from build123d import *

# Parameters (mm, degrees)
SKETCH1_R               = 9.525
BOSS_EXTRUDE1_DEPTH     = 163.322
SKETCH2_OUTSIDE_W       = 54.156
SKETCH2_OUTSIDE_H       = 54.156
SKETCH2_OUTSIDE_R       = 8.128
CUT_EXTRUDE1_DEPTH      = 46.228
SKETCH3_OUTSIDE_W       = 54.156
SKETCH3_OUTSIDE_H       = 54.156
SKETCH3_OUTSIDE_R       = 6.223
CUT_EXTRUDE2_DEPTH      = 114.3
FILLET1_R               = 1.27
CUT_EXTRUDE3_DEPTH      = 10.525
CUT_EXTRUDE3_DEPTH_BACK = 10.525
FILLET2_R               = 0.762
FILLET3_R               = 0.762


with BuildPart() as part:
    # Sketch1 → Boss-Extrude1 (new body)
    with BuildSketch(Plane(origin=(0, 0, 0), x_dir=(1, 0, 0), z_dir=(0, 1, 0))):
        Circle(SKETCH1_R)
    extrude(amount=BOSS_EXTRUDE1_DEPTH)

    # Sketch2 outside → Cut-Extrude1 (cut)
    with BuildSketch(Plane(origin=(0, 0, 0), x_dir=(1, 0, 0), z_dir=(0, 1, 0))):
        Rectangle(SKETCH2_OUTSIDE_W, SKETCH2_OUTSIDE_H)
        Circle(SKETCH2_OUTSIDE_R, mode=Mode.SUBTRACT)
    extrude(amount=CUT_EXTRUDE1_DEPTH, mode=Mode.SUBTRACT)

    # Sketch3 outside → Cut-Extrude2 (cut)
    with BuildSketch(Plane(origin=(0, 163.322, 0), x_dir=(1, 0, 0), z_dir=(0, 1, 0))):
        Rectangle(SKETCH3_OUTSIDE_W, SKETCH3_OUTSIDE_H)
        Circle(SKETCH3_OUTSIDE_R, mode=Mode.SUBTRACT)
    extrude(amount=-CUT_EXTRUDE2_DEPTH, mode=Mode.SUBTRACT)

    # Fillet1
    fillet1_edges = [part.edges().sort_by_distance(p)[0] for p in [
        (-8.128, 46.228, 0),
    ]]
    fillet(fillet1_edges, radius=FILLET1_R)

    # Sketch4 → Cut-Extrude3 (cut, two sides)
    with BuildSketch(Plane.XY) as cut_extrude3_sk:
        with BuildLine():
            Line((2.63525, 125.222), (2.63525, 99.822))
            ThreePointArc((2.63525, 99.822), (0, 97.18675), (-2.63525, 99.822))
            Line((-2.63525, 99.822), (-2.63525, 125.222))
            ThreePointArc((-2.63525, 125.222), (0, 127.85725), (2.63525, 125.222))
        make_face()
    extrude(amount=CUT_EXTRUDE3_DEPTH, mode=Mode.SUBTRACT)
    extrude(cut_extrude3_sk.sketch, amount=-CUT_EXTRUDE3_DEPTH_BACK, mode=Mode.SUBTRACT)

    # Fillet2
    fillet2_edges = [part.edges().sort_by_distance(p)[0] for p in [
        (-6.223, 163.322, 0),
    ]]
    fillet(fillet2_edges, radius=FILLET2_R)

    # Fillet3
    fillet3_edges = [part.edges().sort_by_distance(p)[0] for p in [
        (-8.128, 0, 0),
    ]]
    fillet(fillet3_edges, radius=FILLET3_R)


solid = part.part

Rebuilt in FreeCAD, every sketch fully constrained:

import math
import FreeCAD as App
import Part
import Sketcher
Q = App.Units.Quantity


def edges_at(feature, points):
    """Names of the edges that pass closest to the given points."""
    edges = feature.Shape.Edges
    near = lambda p: min(range(len(edges)), key=lambda i: edges[i].distToShape(Part.Vertex(*p))[0])
    return sorted({f"Edge{near(p) + 1}" for p in points})

doc = App.newDocument("Part")
params = doc.addObject("Spreadsheet::Sheet", "Params")
for row, (alias, value) in enumerate([
    ("sketch1_diameter", "0.75 in"),
    ("pad1_length", "6.43 in"),
    ("sketch2_diameter", "0.64 in"),
    ("pocket1_length", "1.82 in"),
    ("sketch3_diameter", "0.49 in"),
    ("pocket2_length", "4.5 in"),
    ("fillet_radius", "0.05 in"),
    ("sketch4_height", "1 in"),
    ("fillet2_radius", "0.03 in"),
    ("fillet3_radius", "0.03 in"),
], start=1):
    params.set(f"A{row}", alias)
    params.set(f"B{row}", "=" + value)
    params.setAlias(f"B{row}", alias)

body = doc.addObject("PartDesign::Body", "Body")

# Sketch on XZ plane
sketch1 = body.newObject("Sketcher::SketchObject", "Sketch")
sketch1.AttachmentSupport = (doc.getObject("XZ_Plane"), [""])
sketch1.MapMode = "FlatFace"
sketch1.addGeometry(Part.Circle(App.Vector(0, 0, 0), App.Vector(0, 0, 1), 10), False)
sketch1.addConstraint(Sketcher.Constraint("Coincident", 0, 3, -1, 1))
sketch1.addConstraint(Sketcher.Constraint("Diameter", 0, Q("0.75 in")))
sketch1.setExpression("Constraints[1]", "Params.sketch1_diameter")
pad1 = body.newObject("PartDesign::Pad", "Pad")
pad1.Profile = sketch1
pad1.setExpression("Length", "Params.pad1_length")
pad1.Reversed = True

# Sketch on XZ plane
sketch2 = body.newObject("Sketcher::SketchObject", "Sketch001")
sketch2.AttachmentSupport = (doc.getObject("XZ_Plane"), [""])
sketch2.MapMode = "FlatFace"
sketch2.addGeometry(Part.LineSegment(App.Vector(-27, -27, 0), App.Vector(-27, 27, 0)), False)
sketch2.addGeometry(Part.LineSegment(App.Vector(-27, 27, 0), App.Vector(27, 27, 0)), False)
sketch2.addGeometry(Part.LineSegment(App.Vector(27, 27, 0), App.Vector(27, -27, 0)), False)
sketch2.addGeometry(Part.LineSegment(App.Vector(27, -27, 0), App.Vector(-27, -27, 0)), False)
sketch2.addGeometry(Part.Circle(App.Vector(0, 0, 0), App.Vector(0, 0, 1), 8), False)
sketch2.addConstraint(Sketcher.Constraint("Coincident", 0, 2, 1, 1))
sketch2.addConstraint(Sketcher.Constraint("Coincident", 1, 2, 2, 1))
sketch2.addConstraint(Sketcher.Constraint("Coincident", 2, 2, 3, 1))
sketch2.addConstraint(Sketcher.Constraint("Coincident", 3, 2, 0, 1))
sketch2.addConstraint(Sketcher.Constraint("Vertical", 0))
sketch2.addConstraint(Sketcher.Constraint("Horizontal", 1))
sketch2.addConstraint(Sketcher.Constraint("Vertical", 2))
sketch2.addConstraint(Sketcher.Constraint("Horizontal", 3))
sketch2.addConstraint(Sketcher.Constraint("Coincident", 4, 3, -1, 1))
sketch2.addConstraint(Sketcher.Constraint("Symmetric", 0, 2, 2, 2, -1, 1))
sketch2.addConstraint(Sketcher.Constraint("Equal", 3, 0))
sketch2.addConstraint(Sketcher.Constraint("Diameter", 4, Q("0.64 in")))
sketch2.addConstraint(Sketcher.Constraint("DistanceX", 1, 1, 1, 2, Q("54.156 mm")))
sketch2.setExpression("Constraints[11]", "Params.sketch2_diameter")
pocket1 = body.newObject("PartDesign::Pocket", "Pocket")
pocket1.Profile = sketch2
pocket1.setExpression("Length", "Params.pocket1_length")

# Sketch on XZ plane
sketch3 = body.newObject("Sketcher::SketchObject", "Sketch002")
sketch3.AttachmentSupport = (doc.getObject("XZ_Plane"), [""])
sketch3.MapMode = "FlatFace"
sketch3.AttachmentOffset = App.Placement(App.Vector(0, 0, -6.43 * 25.4), App.Rotation())
sketch3.addGeometry(Part.LineSegment(App.Vector(-27, -27, 0), App.Vector(-27, 27, 0)), False)
sketch3.addGeometry(Part.LineSegment(App.Vector(-27, 27, 0), App.Vector(27, 27, 0)), False)
sketch3.addGeometry(Part.LineSegment(App.Vector(27, 27, 0), App.Vector(27, -27, 0)), False)
sketch3.addGeometry(Part.LineSegment(App.Vector(27, -27, 0), App.Vector(-27, -27, 0)), False)
sketch3.addGeometry(Part.Circle(App.Vector(0, 0, 0), App.Vector(0, 0, 1), 6), False)
sketch3.addConstraint(Sketcher.Constraint("Coincident", 0, 2, 1, 1))
sketch3.addConstraint(Sketcher.Constraint("Coincident", 1, 2, 2, 1))
sketch3.addConstraint(Sketcher.Constraint("Coincident", 2, 2, 3, 1))
sketch3.addConstraint(Sketcher.Constraint("Coincident", 3, 2, 0, 1))
sketch3.addConstraint(Sketcher.Constraint("Vertical", 0))
sketch3.addConstraint(Sketcher.Constraint("Horizontal", 1))
sketch3.addConstraint(Sketcher.Constraint("Vertical", 2))
sketch3.addConstraint(Sketcher.Constraint("Horizontal", 3))
sketch3.addConstraint(Sketcher.Constraint("Coincident", 4, 3, -1, 1))
sketch3.addConstraint(Sketcher.Constraint("Symmetric", 0, 2, 2, 2, -1, 1))
sketch3.addConstraint(Sketcher.Constraint("Equal", 3, 0))
sketch3.addConstraint(Sketcher.Constraint("Diameter", 4, Q("0.49 in")))
sketch3.addConstraint(Sketcher.Constraint("DistanceX", 1, 1, 1, 2, Q("54.156 mm")))
sketch3.setExpression("Constraints[11]", "Params.sketch3_diameter")
pocket2 = body.newObject("PartDesign::Pocket", "Pocket001")
pocket2.Profile = sketch3
pocket2.setExpression("Length", "Params.pocket2_length")
pocket2.Reversed = True
doc.recompute()

fillet = body.newObject("PartDesign::Fillet", "Fillet")
fillet.Base = (pocket2, edges_at(pocket2, [(-8.128, 46.228, 0)]))
fillet.setExpression("Radius", "Params.fillet_radius")

# Sketch on XY plane
sketch4 = body.newObject("Sketcher::SketchObject", "Sketch003")
sketch4.AttachmentSupport = (doc.getObject("XY_Plane"), [""])
sketch4.MapMode = "FlatFace"
sketch4.addGeometry(Part.LineSegment(App.Vector(2.6, 99.8, 0), App.Vector(2.6, 125.2, 0)), False)
sketch4.addGeometry(Part.ArcOfCircle(Part.Circle(App.Vector(0, 125.2, 0), App.Vector(0, 0, 1), 2.6), math.radians(0), math.radians(180)), False)
sketch4.addGeometry(Part.LineSegment(App.Vector(-2.6, 125.2, 0), App.Vector(-2.6, 99.8, 0)), False)
sketch4.addGeometry(Part.ArcOfCircle(Part.Circle(App.Vector(0, 99.8, 0), App.Vector(0, 0, 1), 2.6), math.radians(180), math.radians(360)), False)
sketch4.addConstraint(Sketcher.Constraint("Tangent", 0, 2, 1, 1))
sketch4.addConstraint(Sketcher.Constraint("Tangent", 1, 2, 2, 1))
sketch4.addConstraint(Sketcher.Constraint("Tangent", 2, 2, 3, 1))
sketch4.addConstraint(Sketcher.Constraint("Tangent", 3, 2, 0, 1))
sketch4.addConstraint(Sketcher.Constraint("Vertical", 0))
sketch4.addConstraint(Sketcher.Constraint("Vertical", 2))
sketch4.addConstraint(Sketcher.Constraint("PointOnObject", 1, 3, -2))
sketch4.addConstraint(Sketcher.Constraint("DistanceY", 0, 1, 0, 2, Q("1 in")))
sketch4.addConstraint(Sketcher.Constraint("DistanceY", -1, 1, 1, 3, Q("4.93 in")))
sketch4.addConstraint(Sketcher.Constraint("Radius", 1, Q("2.63525 mm")))
sketch4.setExpression("Constraints[7]", "Params.sketch4_height")
pocket3 = body.newObject("PartDesign::Pocket", "Pocket002")
pocket3.Profile = sketch4
pocket3.Type = "ThroughAll"
pocket3.Midplane = True
doc.recompute()

fillet2 = body.newObject("PartDesign::Fillet", "Fillet001")
fillet2.Base = (pocket3, edges_at(pocket3, [(-6.223, 163.322, 0)]))
fillet2.setExpression("Radius", "Params.fillet2_radius")
doc.recompute()

fillet3 = body.newObject("PartDesign::Fillet", "Fillet002")
fillet3.Base = (fillet2, edges_at(fillet2, [(-8.128, 0, 0)]))
fillet3.setExpression("Radius", "Params.fillet3_radius")

doc.recompute()
